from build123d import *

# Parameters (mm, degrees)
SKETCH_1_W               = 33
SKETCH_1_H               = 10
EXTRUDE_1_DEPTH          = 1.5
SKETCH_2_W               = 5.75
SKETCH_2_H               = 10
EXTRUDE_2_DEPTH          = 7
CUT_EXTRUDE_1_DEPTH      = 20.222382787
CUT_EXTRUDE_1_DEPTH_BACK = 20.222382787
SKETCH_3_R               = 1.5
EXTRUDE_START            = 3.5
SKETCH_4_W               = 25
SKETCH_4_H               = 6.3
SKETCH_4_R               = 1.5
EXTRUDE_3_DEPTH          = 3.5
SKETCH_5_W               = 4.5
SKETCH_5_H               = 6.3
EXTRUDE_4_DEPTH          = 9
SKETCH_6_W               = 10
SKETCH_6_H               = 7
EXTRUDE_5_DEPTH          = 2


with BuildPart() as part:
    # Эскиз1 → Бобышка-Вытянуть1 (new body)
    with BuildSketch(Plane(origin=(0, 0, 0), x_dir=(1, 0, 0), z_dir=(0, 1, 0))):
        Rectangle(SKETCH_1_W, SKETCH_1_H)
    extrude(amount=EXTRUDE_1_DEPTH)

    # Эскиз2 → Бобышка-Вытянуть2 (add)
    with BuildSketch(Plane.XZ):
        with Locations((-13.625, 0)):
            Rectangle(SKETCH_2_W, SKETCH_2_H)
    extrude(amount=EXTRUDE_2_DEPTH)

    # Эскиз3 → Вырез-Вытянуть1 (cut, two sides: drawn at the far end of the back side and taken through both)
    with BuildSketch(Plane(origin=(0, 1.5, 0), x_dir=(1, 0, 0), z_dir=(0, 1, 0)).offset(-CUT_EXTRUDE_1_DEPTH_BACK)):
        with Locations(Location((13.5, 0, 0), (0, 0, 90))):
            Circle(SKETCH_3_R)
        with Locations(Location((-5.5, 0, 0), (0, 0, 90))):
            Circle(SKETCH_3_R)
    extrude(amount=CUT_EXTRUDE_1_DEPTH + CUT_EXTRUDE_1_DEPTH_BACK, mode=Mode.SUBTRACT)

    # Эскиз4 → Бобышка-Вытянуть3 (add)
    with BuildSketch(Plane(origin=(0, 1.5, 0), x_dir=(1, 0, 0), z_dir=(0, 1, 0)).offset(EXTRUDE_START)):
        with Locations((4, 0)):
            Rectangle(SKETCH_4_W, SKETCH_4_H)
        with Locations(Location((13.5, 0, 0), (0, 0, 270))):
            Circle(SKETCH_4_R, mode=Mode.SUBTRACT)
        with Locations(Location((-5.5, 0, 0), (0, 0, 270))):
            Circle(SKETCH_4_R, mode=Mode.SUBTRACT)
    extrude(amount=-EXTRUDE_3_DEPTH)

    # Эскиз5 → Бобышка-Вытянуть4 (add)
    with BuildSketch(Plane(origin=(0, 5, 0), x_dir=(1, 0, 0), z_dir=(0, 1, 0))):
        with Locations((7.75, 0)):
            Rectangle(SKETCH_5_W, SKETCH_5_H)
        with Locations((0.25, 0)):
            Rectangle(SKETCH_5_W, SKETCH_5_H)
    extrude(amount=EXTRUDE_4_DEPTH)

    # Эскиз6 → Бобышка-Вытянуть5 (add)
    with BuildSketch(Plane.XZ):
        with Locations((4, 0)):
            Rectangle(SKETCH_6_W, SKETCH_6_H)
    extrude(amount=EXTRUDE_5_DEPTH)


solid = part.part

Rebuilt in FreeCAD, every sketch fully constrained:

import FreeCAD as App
import Part
import Sketcher
Q = App.Units.Quantity

doc = App.newDocument("Part")
body = doc.addObject("PartDesign::Body", "Body")

# Sketch on XZ plane
sketch1 = doc.addObject("Sketcher::SketchObject", "Sketch")
body.addObject(sketch1)
sketch1.AttachmentSupport = (doc.XZ_Plane, [""])
sketch1.MapMode = "FlatFace"
sketch1.addGeometry(Part.LineSegment(App.Vector(-16.5, -5, 0), App.Vector(-16.5, 5, 0)), False)
sketch1.addGeometry(Part.LineSegment(App.Vector(-16.5, 5, 0), App.Vector(16.5, 5, 0)), False)
sketch1.addGeometry(Part.LineSegment(App.Vector(16.5, 5, 0), App.Vector(16.5, -5, 0)), False)
sketch1.addGeometry(Part.LineSegment(App.Vector(16.5, -5, 0), App.Vector(-16.5, -5, 0)), False)
sketch1.addConstraint(Sketcher.Constraint("Coincident", 0, 2, 1, 1))
sketch1.addConstraint(Sketcher.Constraint("Coincident", 1, 2, 2, 1))
sketch1.addConstraint(Sketcher.Constraint("Coincident", 2, 2, 3, 1))
sketch1.addConstraint(Sketcher.Constraint("Coincident", 3, 2, 0, 1))
sketch1.addConstraint(Sketcher.Constraint("Vertical", 0))
sketch1.addConstraint(Sketcher.Constraint("Horizontal", 1))
sketch1.addConstraint(Sketcher.Constraint("Vertical", 2))
sketch1.addConstraint(Sketcher.Constraint("Horizontal", 3))
sketch1.addConstraint(Sketcher.Constraint("Symmetric", 0, 2, 2, 2, -1, 1))
sketch1.addConstraint(Sketcher.Constraint("DistanceX", 1, 1, 1, 2, Q("33 mm")))
sketch1.addConstraint(Sketcher.Constraint("DistanceY", 0, 1, 0, 2, Q("10 mm")))
pad1 = doc.addObject("PartDesign::Pad", "Pad")
body.addObject(pad1)
pad1.Profile = sketch1
pad1.Length = 1.5
pad1.Reversed = True

# Sketch on XZ plane
sketch2 = doc.addObject("Sketcher::SketchObject", "Sketch001")
body.addObject(sketch2)
sketch2.AttachmentSupport = (doc.XZ_Plane, [""])
sketch2.MapMode = "FlatFace"
sketch2.addGeometry(Part.LineSegment(App.Vector(-16.5, 5, 0), App.Vector(-16.5, -5, 0)), False)
sketch2.addGeometry(Part.LineSegment(App.Vector(-16.5, -5, 0), App.Vector(-10.75, -5, 0)), False)
sketch2.addGeometry(Part.LineSegment(App.Vector(-10.75, -5, 0), App.Vector(-10.75, 5, 0)), False)
sketch2.addGeometry(Part.LineSegment(App.Vector(-10.75, 5, 0), App.Vector(-16.5, 5, 0)), False)
sketch2.addConstraint(Sketcher.Constraint("Coincident", 0, 2, 1, 1))
sketch2.addConstraint(Sketcher.Constraint("Coincident", 1, 2, 2, 1))
sketch2.addConstraint(Sketcher.Constraint("Coincident", 2, 2, 3, 1))
sketch2.addConstraint(Sketcher.Constraint("Coincident", 3, 2, 0, 1))
sketch2.addConstraint(Sketcher.Constraint("Vertical", 0))
sketch2.addConstraint(Sketcher.Constraint("Horizontal", 1))
sketch2.addConstraint(Sketcher.Constraint("Vertical", 2))
sketch2.addConstraint(Sketcher.Constraint("Horizontal", 3))
sketch2.addConstraint(Sketcher.Constraint("DistanceY", 0, 2, 0, 1, Q("10 mm")))
sketch2.addConstraint(Sketcher.Constraint("DistanceY", 0, 2, -1, 1, Q("5 mm")))
sketch2.addConstraint(Sketcher.Constraint("DistanceX", 1, 1, 1, 2, Q("5.75 mm")))
sketch2.addConstraint(Sketcher.Constraint("DistanceX", 0, 2, -1, 1, Q("16.5 mm")))
pad2 = doc.addObject("PartDesign::Pad", "Pad001")
body.addObject(pad2)
pad2.Profile = sketch2
pad2.Length = 7

# Sketch on XZ plane
sketch3 = doc.addObject("Sketcher::SketchObject", "Sketch002")
body.addObject(sketch3)
sketch3.AttachmentSupport = (doc.XZ_Plane, [""])
sketch3.MapMode = "FlatFace"
sketch3.AttachmentOffset = App.Placement(App.Vector(0, 0, -1.5), App.Rotation())
sketch3.addGeometry(Part.Circle(App.Vector(13.5, 0, 0), App.Vector(0, 0, 1), 1.5), False)
sketch3.addGeometry(Part.Circle(App.Vector(-5.5, 0, 0), App.Vector(0, 0, 1), 1.5), False)
sketch3.addConstraint(Sketcher.Constraint("Equal", 0, 1))
sketch3.addConstraint(Sketcher.Constraint("PointOnObject", 0, 3, -1))
sketch3.addConstraint(Sketcher.Constraint("PointOnObject", 1, 3, -1))
sketch3.addConstraint(Sketcher.Constraint("Diameter", 0, Q("3 mm")))
sketch3.addConstraint(Sketcher.Constraint("DistanceX", 1, 3, 0, 3, Q("19 mm")))
sketch3.addConstraint(Sketcher.Constraint("DistanceX", -1, 1, 0, 3, Q("13.5 mm")))
pocket1 = doc.addObject("PartDesign::Pocket", "Pocket")
body.addObject(pocket1)
pocket1.Profile = sketch3
pocket1.Type = "ThroughAll"
pocket1.Midplane = True

# Sketch on XZ plane
sketch4 = doc.addObject("Sketcher::SketchObject", "Sketch003")
body.addObject(sketch4)
sketch4.AttachmentSupport = (doc.XZ_Plane, [""])
sketch4.MapMode = "FlatFace"
sketch4.AttachmentOffset = App.Placement(App.Vector(0, 0, -5), App.Rotation())
sketch4.addGeometry(Part.LineSegment(App.Vector(-8.5, -3.15, 0), App.Vector(-8.5, 3.15, 0)), False)
sketch4.addGeometry(Part.LineSegment(App.Vector(-8.5, 3.15, 0), App.Vector(16.5, 3.15, 0)), False)
sketch4.addGeometry(Part.LineSegment(App.Vector(16.5, 3.15, 0), App.Vector(16.5, -3.15, 0)), False)
sketch4.addGeometry(Part.LineSegment(App.Vector(16.5, -3.15, 0), App.Vector(-8.5, -3.15, 0)), False)
sketch4.addGeometry(Part.Circle(App.Vector(-5.5, 0, 0), App.Vector(0, 0, 1), 1.5), False)
sketch4.addGeometry(Part.Circle(App.Vector(13.5, 0, 0), App.Vector(0, 0, 1), 1.5), False)
sketch4.addConstraint(Sketcher.Constraint("Coincident", 0, 2, 1, 1))
sketch4.addConstraint(Sketcher.Constraint("Coincident", 1, 2, 2, 1))
sketch4.addConstraint(Sketcher.Constraint("Coincident", 2, 2, 3, 1))
sketch4.addConstraint(Sketcher.Constraint("Coincident", 3, 2, 0, 1))
sketch4.addConstraint(Sketcher.Constraint("Vertical", 0))
sketch4.addConstraint(Sketcher.Constraint("Horizontal", 1))
sketch4.addConstraint(Sketcher.Constraint("Vertical", 2))
sketch4.addConstraint(Sketcher.Constraint("Horizontal", 3))
sketch4.addConstraint(Sketcher.Constraint("Equal", 4, 5))
sketch4.addConstraint(Sketcher.Constraint("PointOnObject", 4, 3, -1))
sketch4.addConstraint(Sketcher.Constraint("PointOnObject", 5, 3, -1))
sketch4.addConstraint(Sketcher.Constraint("Diameter", 4, Q("3 mm")))
sketch4.addConstraint(Sketcher.Constraint("DistanceX", 1, 1, 1, 2, Q("25 mm")))
sketch4.addConstraint(Sketcher.Constraint("DistanceY", 0, 1, 0, 2, Q("6.3 mm")))
sketch4.addConstraint(Sketcher.Constraint("DistanceX", 4, 3, 5, 3, Q("19 mm")))
sketch4.addConstraint(Sketcher.Constraint("DistanceX", 0, 2, 4, 3, Q("3 mm")))
sketch4.addConstraint(Sketcher.Constraint("DistanceX", 4, 3, -1, 1, Q("5.5 mm")))
sketch4.addConstraint(Sketcher.Constraint("DistanceY", -1, 1, 0, 2, Q("3.15 mm")))
pad3 = doc.addObject("PartDesign::Pad", "Pad002")
body.addObject(pad3)
pad3.Profile = sketch4
pad3.Length = 3.5

# Sketch on XZ plane
sketch5 = doc.addObject("Sketcher::SketchObject", "Sketch004")
body.addObject(sketch5)
sketch5.AttachmentSupport = (doc.XZ_Plane, [""])
sketch5.MapMode = "FlatFace"
sketch5.AttachmentOffset = App.Placement(App.Vector(0, 0, -5), App.Rotation())
sketch5.addGeometry(Part.LineSegment(App.Vector(5.5, -3.15, 0), App.Vector(5.5, 3.15, 0)), False)
sketch5.addGeometry(Part.LineSegment(App.Vector(5.5, 3.15, 0), App.Vector(10, 3.15, 0)), False)
sketch5.addGeometry(Part.LineSegment(App.Vector(10, 3.15, 0), App.Vector(10, -3.15, 0)), False)
sketch5.addGeometry(Part.LineSegment(App.Vector(10, -3.15, 0), App.Vector(5.5, -3.15, 0)), False)
sketch5.addGeometry(Part.LineSegment(App.Vector(-2, -3.15, 0), App.Vector(-2, 3.15, 0)), False)
sketch5.addGeometry(Part.LineSegment(App.Vector(-2, 3.15, 0), App.Vector(2.5, 3.15, 0)), False)
sketch5.addGeometry(Part.LineSegment(App.Vector(2.5, 3.15, 0), App.Vector(2.5, -3.15, 0)), False)
sketch5.addGeometry(Part.LineSegment(App.Vector(2.5, -3.15, 0), App.Vector(-2, -3.15, 0)), False)
sketch5.addConstraint(Sketcher.Constraint("Coincident", 0, 2, 1, 1))
sketch5.addConstraint(Sketcher.Constraint("Coincident", 1, 2, 2, 1))
sketch5.addConstraint(Sketcher.Constraint("Coincident", 2, 2, 3, 1))
sketch5.addConstraint(Sketcher.Constraint("Coincident", 3, 2, 0, 1))
sketch5.addConstraint(Sketcher.Constraint("Coincident", 4, 2, 5, 1))
sketch5.addConstraint(Sketcher.Constraint("Coincident", 5, 2, 6, 1))
sketch5.addConstraint(Sketcher.Constraint("Coincident", 6, 2, 7, 1))
sketch5.addConstraint(Sketcher.Constraint("Coincident", 7, 2, 4, 1))
sketch5.addConstraint(Sketcher.Constraint("Vertical", 0))
sketch5.addConstraint(Sketcher.Constraint("Horizontal", 1))
sketch5.addConstraint(Sketcher.Constraint("Vertical", 2))
sketch5.addConstraint(Sketcher.Constraint("Horizontal", 3))
sketch5.addConstraint(Sketcher.Constraint("Vertical", 4))
sketch5.addConstraint(Sketcher.Constraint("Horizontal", 5))
sketch5.addConstraint(Sketcher.Constraint("Vertical", 6))
sketch5.addConstraint(Sketcher.Constraint("Horizontal", 7))
sketch5.addConstraint(Sketcher.Constraint("Horizontal", 1, 2, 4, 2))
sketch5.addConstraint(Sketcher.Constraint("Horizontal", 3, 2, 6, 2))
sketch5.addConstraint(Sketcher.Constraint("Equal", 3, 5))
sketch5.addConstraint(Sketcher.Constraint("DistanceX", 1, 1, 1, 2, Q("4.5 mm")))
sketch5.addConstraint(Sketcher.Constraint("DistanceY", 0, 1, 0, 2, Q("6.3 mm")))
sketch5.addConstraint(Sketcher.Constraint("DistanceX", -1, 1, 1, 2, Q("10 mm")))
sketch5.addConstraint(Sketcher.Constraint("DistanceX", 4, 2, -1, 1, Q("2 mm")))
sketch5.addConstraint(Sketcher.Constraint("DistanceY", -1, 1, 0, 2, Q("3.15 mm")))
pad4 = doc.addObject("PartDesign::Pad", "Pad003")
body.addObject(pad4)
pad4.Profile = sketch5
pad4.Length = 9
pad4.Reversed = True

# Sketch on XZ plane
sketch6 = doc.addObject("Sketcher::SketchObject", "Sketch005")
body.addObject(sketch6)
sketch6.AttachmentSupport = (doc.XZ_Plane, [""])
sketch6.MapMode = "FlatFace"
sketch6.addGeometry(Part.LineSegment(App.Vector(-1, 3.5, 0), App.Vector(-1, -3.5, 0)), False)
sketch6.addGeometry(Part.LineSegment(App.Vector(-1, -3.5, 0), App.Vector(9, -3.5, 0)), False)
sketch6.addGeometry(Part.LineSegment(App.Vector(9, -3.5, 0), App.Vector(9, 3.5, 0)), False)
sketch6.addGeometry(Part.LineSegment(App.Vector(9, 3.5, 0), App.Vector(-1, 3.5, 0)), False)
sketch6.addConstraint(Sketcher.Constraint("Coincident", 0, 2, 1, 1))
sketch6.addConstraint(Sketcher.Constraint("Coincident", 1, 2, 2, 1))
sketch6.addConstraint(Sketcher.Constraint("Coincident", 2, 2, 3, 1))
sketch6.addConstraint(Sketcher.Constraint("Coincident", 3, 2, 0, 1))
sketch6.addConstraint(Sketcher.Constraint("Vertical", 0))
sketch6.addConstraint(Sketcher.Constraint("Horizontal", 1))
sketch6.addConstraint(Sketcher.Constraint("Vertical", 2))
sketch6.addConstraint(Sketcher.Constraint("Horizontal", 3))
sketch6.addConstraint(Sketcher.Constraint("DistanceX", 1, 1, 1, 2, Q("10 mm")))
sketch6.addConstraint(Sketcher.Constraint("DistanceY", 0, 2, 0, 1, Q("7 mm")))
sketch6.addConstraint(Sketcher.Constraint("DistanceX", 0, 2, -1, 1, Q("1 mm")))
sketch6.addConstraint(Sketcher.Constraint("DistanceY", 0, 2, -1, 1, Q("3.5 mm")))
pad5 = doc.addObject("PartDesign::Pad", "Pad004")
body.addObject(pad5)
pad5.Profile = sketch6
pad5.Length = 2

doc.recompute()
